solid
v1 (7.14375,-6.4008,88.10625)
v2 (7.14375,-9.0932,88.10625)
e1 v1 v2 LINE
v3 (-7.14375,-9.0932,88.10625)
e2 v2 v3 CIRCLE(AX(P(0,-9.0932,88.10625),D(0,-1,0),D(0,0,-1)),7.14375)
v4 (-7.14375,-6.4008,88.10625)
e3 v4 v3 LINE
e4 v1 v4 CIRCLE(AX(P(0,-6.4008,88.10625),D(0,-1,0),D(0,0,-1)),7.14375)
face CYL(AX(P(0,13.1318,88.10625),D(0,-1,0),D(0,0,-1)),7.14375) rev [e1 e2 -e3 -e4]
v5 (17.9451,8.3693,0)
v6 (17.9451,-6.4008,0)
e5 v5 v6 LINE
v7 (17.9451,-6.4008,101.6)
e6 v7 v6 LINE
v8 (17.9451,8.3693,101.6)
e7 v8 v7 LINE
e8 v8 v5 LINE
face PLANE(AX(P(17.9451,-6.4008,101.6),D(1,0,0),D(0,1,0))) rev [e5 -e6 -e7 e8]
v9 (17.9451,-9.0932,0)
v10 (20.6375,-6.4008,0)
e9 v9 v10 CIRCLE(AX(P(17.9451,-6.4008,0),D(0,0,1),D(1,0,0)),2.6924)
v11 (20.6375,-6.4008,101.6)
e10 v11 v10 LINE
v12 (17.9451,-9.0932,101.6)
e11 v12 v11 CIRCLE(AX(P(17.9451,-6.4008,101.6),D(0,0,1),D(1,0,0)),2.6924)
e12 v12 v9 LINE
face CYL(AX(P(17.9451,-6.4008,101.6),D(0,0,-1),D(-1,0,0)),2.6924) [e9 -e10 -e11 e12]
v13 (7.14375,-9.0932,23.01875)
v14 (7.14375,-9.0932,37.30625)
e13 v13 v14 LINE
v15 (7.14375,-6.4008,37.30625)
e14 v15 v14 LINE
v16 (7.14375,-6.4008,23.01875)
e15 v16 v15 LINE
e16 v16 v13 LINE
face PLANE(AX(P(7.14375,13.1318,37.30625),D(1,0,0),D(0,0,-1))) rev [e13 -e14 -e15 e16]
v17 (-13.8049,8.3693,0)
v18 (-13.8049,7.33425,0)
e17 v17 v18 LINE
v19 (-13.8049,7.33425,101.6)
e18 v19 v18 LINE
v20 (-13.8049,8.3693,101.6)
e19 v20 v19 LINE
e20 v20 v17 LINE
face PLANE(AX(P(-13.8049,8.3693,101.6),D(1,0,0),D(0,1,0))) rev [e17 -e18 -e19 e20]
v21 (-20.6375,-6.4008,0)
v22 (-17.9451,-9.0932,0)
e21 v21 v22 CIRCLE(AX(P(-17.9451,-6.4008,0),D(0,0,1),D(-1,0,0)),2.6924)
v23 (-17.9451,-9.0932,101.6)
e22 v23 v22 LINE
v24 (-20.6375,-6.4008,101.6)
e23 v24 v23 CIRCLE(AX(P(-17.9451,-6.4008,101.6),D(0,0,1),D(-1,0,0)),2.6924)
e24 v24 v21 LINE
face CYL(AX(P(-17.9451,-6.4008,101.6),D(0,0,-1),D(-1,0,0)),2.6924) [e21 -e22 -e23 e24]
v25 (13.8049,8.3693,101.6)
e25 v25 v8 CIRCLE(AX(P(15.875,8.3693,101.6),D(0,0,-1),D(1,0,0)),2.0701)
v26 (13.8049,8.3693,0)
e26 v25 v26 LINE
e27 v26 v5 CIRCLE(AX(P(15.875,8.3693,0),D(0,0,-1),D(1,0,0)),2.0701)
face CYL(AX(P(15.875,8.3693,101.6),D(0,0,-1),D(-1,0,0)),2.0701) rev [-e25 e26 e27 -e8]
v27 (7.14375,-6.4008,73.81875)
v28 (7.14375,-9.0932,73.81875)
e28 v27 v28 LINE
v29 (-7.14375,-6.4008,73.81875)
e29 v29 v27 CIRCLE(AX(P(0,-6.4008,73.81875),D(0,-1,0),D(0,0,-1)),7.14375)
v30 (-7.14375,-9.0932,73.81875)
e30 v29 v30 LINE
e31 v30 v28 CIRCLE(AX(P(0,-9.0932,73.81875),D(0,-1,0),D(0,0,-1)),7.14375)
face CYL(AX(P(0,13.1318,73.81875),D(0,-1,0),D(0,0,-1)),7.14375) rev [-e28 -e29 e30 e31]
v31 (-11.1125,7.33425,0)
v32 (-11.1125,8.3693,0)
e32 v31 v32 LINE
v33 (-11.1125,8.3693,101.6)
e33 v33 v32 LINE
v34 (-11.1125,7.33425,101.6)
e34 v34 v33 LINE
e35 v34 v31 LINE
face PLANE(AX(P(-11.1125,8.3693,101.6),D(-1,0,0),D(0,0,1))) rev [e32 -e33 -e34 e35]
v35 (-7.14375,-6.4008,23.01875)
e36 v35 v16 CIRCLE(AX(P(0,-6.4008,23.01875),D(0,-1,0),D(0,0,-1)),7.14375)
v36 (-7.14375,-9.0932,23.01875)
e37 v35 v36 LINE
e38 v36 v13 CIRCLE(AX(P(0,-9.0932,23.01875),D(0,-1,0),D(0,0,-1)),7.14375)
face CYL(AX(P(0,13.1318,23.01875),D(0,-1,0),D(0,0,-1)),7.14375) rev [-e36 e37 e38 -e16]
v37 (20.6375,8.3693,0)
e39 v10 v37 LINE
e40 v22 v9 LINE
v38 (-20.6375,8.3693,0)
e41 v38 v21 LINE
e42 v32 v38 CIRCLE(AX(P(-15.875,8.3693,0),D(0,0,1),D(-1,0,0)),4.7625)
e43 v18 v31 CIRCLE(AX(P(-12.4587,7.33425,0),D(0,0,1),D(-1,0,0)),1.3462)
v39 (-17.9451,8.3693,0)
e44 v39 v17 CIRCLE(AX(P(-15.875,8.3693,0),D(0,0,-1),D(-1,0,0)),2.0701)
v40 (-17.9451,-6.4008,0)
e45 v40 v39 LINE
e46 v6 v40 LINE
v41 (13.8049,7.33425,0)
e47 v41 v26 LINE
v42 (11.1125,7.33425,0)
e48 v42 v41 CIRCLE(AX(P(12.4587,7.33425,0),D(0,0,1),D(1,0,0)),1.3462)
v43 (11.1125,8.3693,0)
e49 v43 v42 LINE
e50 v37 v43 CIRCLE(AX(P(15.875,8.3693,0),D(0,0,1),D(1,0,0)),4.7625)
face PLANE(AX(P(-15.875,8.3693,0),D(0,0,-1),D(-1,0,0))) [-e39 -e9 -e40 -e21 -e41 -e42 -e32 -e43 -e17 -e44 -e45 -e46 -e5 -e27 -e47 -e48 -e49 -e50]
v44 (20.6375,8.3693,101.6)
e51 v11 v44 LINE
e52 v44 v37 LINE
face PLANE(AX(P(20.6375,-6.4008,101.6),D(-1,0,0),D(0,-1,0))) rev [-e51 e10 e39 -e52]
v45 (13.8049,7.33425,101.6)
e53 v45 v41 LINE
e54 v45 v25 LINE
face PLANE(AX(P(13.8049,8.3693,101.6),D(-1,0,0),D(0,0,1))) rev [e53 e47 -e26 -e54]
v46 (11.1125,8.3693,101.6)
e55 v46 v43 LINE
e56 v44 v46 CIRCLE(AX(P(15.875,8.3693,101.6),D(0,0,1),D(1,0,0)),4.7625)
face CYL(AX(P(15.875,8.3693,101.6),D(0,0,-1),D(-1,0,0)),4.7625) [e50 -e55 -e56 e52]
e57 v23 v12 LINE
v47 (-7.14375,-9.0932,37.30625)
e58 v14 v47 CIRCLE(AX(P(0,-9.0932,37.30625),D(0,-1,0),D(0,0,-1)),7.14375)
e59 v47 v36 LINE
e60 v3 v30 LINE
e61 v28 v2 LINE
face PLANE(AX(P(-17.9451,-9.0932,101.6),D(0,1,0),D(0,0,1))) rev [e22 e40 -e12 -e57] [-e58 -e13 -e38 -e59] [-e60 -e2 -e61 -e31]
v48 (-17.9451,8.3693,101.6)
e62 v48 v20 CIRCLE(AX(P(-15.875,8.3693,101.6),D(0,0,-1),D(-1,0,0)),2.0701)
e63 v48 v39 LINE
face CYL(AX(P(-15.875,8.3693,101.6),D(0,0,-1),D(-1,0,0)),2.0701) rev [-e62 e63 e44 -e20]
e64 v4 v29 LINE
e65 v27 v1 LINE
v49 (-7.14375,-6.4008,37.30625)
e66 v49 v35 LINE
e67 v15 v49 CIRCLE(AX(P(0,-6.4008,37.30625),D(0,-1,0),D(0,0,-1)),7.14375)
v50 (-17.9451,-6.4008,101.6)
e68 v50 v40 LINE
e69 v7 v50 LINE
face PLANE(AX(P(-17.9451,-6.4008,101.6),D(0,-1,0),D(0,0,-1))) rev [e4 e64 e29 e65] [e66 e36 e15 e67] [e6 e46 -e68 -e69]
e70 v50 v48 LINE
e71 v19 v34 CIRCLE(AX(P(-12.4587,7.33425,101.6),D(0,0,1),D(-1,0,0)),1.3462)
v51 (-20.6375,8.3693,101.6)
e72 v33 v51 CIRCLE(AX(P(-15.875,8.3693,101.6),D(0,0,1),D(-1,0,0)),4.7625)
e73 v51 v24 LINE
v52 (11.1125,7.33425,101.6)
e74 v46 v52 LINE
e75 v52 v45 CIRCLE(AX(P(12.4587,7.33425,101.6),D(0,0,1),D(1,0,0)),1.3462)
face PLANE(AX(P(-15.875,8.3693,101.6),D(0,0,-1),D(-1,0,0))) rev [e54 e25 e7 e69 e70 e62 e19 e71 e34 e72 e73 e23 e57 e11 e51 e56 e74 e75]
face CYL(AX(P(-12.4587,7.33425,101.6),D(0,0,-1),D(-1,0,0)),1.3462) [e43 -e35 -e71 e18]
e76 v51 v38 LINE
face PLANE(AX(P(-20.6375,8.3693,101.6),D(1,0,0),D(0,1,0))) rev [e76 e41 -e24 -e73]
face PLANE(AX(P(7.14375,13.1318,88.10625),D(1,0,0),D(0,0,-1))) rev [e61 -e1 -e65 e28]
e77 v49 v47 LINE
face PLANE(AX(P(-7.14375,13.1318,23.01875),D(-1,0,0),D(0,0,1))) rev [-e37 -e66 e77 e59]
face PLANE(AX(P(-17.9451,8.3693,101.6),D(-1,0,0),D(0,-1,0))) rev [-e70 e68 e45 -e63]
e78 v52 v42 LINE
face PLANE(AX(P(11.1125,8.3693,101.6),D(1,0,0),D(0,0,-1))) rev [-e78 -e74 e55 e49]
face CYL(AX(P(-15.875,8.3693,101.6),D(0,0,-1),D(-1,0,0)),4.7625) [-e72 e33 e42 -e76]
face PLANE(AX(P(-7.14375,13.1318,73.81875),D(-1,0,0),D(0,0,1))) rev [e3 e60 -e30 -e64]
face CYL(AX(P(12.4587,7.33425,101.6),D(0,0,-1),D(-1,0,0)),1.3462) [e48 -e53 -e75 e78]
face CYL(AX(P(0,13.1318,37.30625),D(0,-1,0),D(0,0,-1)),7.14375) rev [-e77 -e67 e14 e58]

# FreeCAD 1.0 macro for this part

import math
import FreeCAD as App
import Part
import Sketcher
Q = App.Units.Quantity

doc = App.newDocument("Part")
params = doc.addObject("Spreadsheet::Sheet", "Params")
for row, (alias, value) in enumerate([
    ("sketch1_radius", "0.106 in"),
    ("sketch1_radius2", "0.1875 in"),
    ("sketch1_width", "1.413 in"),
    ("pad1_length", "4 in"),
    ("sketch2_radius", "0.28125 in"),
    ("sketch2_height", "0.5625 in"),
    ("linearpattern_pitch", "2 in"),
], start=1):
    params.set(f"A{row}", alias)
    params.set(f"B{row}", "=" + value)
    params.setAlias(f"B{row}", alias)

body = doc.addObject("PartDesign::Body", "Body")

# Sketch on XY plane
sketch1 = body.newObject("Sketcher::SketchObject", "Sketch")
sketch1.AttachmentSupport = (doc.getObject("XY_Plane"), [""])
sketch1.MapMode = "FlatFace"
sketch1.addGeometry([
    Part.LineSegment(App.Vector(-20.6, 8.4, 0), App.Vector(-20.6, -6.4, 0)),  # 0
    Part.ArcOfCircle(Part.Circle(App.Vector(-17.9, -6.4, 0), App.Vector(0, 0, 1), 2.7), math.radians(180), math.radians(270)),  # 1
    Part.LineSegment(App.Vector(-17.9, -9.1, 0), App.Vector(17.9, -9.1, 0)),  # 2
    Part.ArcOfCircle(Part.Circle(App.Vector(17.9, -6.4, 0), App.Vector(0, 0, 1), 2.7), math.radians(-90), math.radians(0)),  # 3
    Part.LineSegment(App.Vector(20.6, -6.4, 0), App.Vector(20.6, 8.4, 0)),  # 4
    Part.ArcOfCircle(Part.Circle(App.Vector(15.9, 8.4, 0), App.Vector(0, 0, 1), 4.8), math.radians(0), math.radians(180)),  # 5
    Part.LineSegment(App.Vector(11.1, 8.4, 0), App.Vector(11.1, 7.3, 0)),  # 6
    Part.ArcOfCircle(Part.Circle(App.Vector(12.5, 7.3, 0), App.Vector(0, 0, 1), 1.3), math.radians(180), math.radians(360)),  # 7
    Part.LineSegment(App.Vector(13.8, 7.3, 0), App.Vector(13.8, 8.4, 0)),  # 8
    Part.ArcOfCircle(Part.Circle(App.Vector(15.9, 8.4, 0), App.Vector(0, 0, 1), 2.1), math.radians(0), math.radians(180)),  # 9
    Part.LineSegment(App.Vector(17.9, 8.4, 0), App.Vector(17.9, -6.4, 0)),  # 10
    Part.LineSegment(App.Vector(17.9, -6.4, 0), App.Vector(-17.9, -6.4, 0)),  # 11
    Part.LineSegment(App.Vector(-17.9, -6.4, 0), App.Vector(-17.9, 8.4, 0)),  # 12
    Part.ArcOfCircle(Part.Circle(App.Vector(-15.9, 8.4, 0), App.Vector(0, 0, 1), 2.1), math.radians(0), math.radians(180)),  # 13
    Part.LineSegment(App.Vector(-13.8, 8.4, 0), App.Vector(-13.8, 7.3, 0)),  # 14
    Part.ArcOfCircle(Part.Circle(App.Vector(-12.5, 7.3, 0), App.Vector(0, 0, 1), 1.3), math.radians(180), math.radians(360)),  # 15
    Part.LineSegment(App.Vector(-11.1, 7.3, 0), App.Vector(-11.1, 8.4, 0)),  # 16
    Part.ArcOfCircle(Part.Circle(App.Vector(-15.9, 8.4, 0), App.Vector(0, 0, 1), 4.8), math.radians(0), math.radians(180)),  # 17
], False)
sketch1.addConstraint([
    Sketcher.Constraint("Tangent", 0, 2, 1, 1),
    Sketcher.Constraint("Tangent", 1, 2, 2, 1),
    Sketcher.Constraint("Tangent", 2, 2, 3, 1),
    Sketcher.Constraint("Tangent", 3, 2, 4, 1),
    Sketcher.Constraint("Tangent", 4, 2, 5, 1),
    Sketcher.Constraint("Tangent", 5, 2, 6, 1),
    Sketcher.Constraint("Tangent", 6, 2, 7, 1),
    Sketcher.Constraint("Tangent", 7, 2, 8, 1),
    Sketcher.Constraint("Tangent", 8, 2, 9, 2),
    Sketcher.Constraint("Tangent", 9, 1, 10, 1),
    Sketcher.Constraint("Coincident", 10, 2, 11, 1),
    Sketcher.Constraint("Coincident", 11, 2, 12, 1),
    Sketcher.Constraint("Tangent", 12, 2, 13, 2),
    Sketcher.Constraint("Tangent", 13, 1, 14, 1),
    Sketcher.Constraint("Tangent", 14, 2, 15, 1),
    Sketcher.Constraint("Tangent", 15, 2, 16, 1),
    Sketcher.Constraint("Tangent", 16, 2, 17, 1),
    Sketcher.Constraint("Tangent", 17, 2, 0, 1),
    Sketcher.Constraint("Vertical", 0),
    Sketcher.Constraint("Horizontal", 2),
    Sketcher.Constraint("Vertical", 4),
    Sketcher.Constraint("Vertical", 6),
    Sketcher.Constraint("Vertical", 8),
    Sketcher.Constraint("Vertical", 10),
    Sketcher.Constraint("Horizontal", 11),
    Sketcher.Constraint("Vertical", 12),
    Sketcher.Constraint("Vertical", 14),
    Sketcher.Constraint("Vertical", 16),
    Sketcher.Constraint("Coincident", 9, 3, 5, 3),
    Sketcher.Constraint("Coincident", 17, 3, 13, 3),
    Sketcher.Constraint("Coincident", 10, 2, 3, 3),
    Sketcher.Constraint("Coincident", 11, 2, 1, 3),
    Sketcher.Constraint("Equal", 9, 13),
    Sketcher.Constraint("Symmetric", 5, 3, 13, 3, -2),
    Sketcher.Constraint("Horizontal", 7, 3, 15, 3),
    Sketcher.Constraint("Radius", 1, Q("0.106 in")),
    Sketcher.Constraint("Radius", 5, Q("0.1875 in")),
    Sketcher.Constraint("DistanceX", 2, 1, 2, 2, Q("1.413 in")),
    Sketcher.Constraint("DistanceY", 0, 2, 0, 1, Q("0.5815 in")),
    Sketcher.Constraint("DistanceY", 1, 3, -1, 1, Q("0.252 in")),
    Sketcher.Constraint("DistanceY", 6, 2, 6, 1, 1.03505),
])
sketch1.setExpression("Constraints[35]", "Params.sketch1_radius")
sketch1.setExpression("Constraints[36]", "Params.sketch1_radius2")
sketch1.setExpression("Constraints[37]", "Params.sketch1_width")
pad1 = body.newObject("PartDesign::Pad", "Pad")
pad1.Profile = sketch1
pad1.setExpression("Length", "Params.pad1_length")

# Sketch on XZ plane
sketch2 = body.newObject("Sketcher::SketchObject", "Sketch001")
sketch2.AttachmentSupport = (doc.getObject("XZ_Plane"), [""])
sketch2.MapMode = "FlatFace"
sketch2.AttachmentOffset = App.Placement(App.Vector(0, 0, 0.358 * 25.4), App.Rotation())
sketch2.addGeometry([
    Part.LineSegment(App.Vector(7, 23, 0), App.Vector(7, 37, 0)),
    Part.ArcOfCircle(Part.Circle(App.Vector(0, 37, 0), App.Vector(0, 0, 1), 7), math.radians(0), math.radians(180)),
    Part.LineSegment(App.Vector(-7, 37, 0), App.Vector(-7, 23, 0)),
    Part.ArcOfCircle(Part.Circle(App.Vector(0, 23, 0), App.Vector(0, 0, 1), 7), math.radians(180), math.radians(360)),
], False)
sketch2.addConstraint([
    Sketcher.Constraint("Tangent", 0, 2, 1, 1),
    Sketcher.Constraint("Tangent", 1, 2, 2, 1),
    Sketcher.Constraint("Tangent", 2, 2, 3, 1),
    Sketcher.Constraint("Tangent", 3, 2, 0, 1),
    Sketcher.Constraint("Vertical", 0),
    Sketcher.Constraint("Vertical", 2),
    Sketcher.Constraint("PointOnObject", 1, 3, -2),
    Sketcher.Constraint("Radius", 1, Q("0.28125 in")),
    Sketcher.Constraint("DistanceY", 0, 1, 0, 2, Q("0.5625 in")),
    Sketcher.Constraint("DistanceY", -1, 1, 1, 3, Q("1.46875 in")),
])
sketch2.setExpression("Constraints[7]", "Params.sketch2_radius")
sketch2.setExpression("Constraints[8]", "Params.sketch2_height")
pocket1 = body.newObject("PartDesign::Pocket", "Pocket")
pocket1.Profile = sketch2
pocket1.Type = "ThroughAll"
doc.recompute()

linearpattern = body.newObject("PartDesign::LinearPattern", "LinearPattern")
linearpattern.Originals = [pocket1]
linearpattern.Direction = (doc.getObject("Z_Axis"), [""])
linearpattern.Mode = "offset"
linearpattern.setExpression("Offset", "Params.linearpattern_pitch")
linearpattern.Occurrences = 2
body.Tip = linearpattern

doc.recompute()
